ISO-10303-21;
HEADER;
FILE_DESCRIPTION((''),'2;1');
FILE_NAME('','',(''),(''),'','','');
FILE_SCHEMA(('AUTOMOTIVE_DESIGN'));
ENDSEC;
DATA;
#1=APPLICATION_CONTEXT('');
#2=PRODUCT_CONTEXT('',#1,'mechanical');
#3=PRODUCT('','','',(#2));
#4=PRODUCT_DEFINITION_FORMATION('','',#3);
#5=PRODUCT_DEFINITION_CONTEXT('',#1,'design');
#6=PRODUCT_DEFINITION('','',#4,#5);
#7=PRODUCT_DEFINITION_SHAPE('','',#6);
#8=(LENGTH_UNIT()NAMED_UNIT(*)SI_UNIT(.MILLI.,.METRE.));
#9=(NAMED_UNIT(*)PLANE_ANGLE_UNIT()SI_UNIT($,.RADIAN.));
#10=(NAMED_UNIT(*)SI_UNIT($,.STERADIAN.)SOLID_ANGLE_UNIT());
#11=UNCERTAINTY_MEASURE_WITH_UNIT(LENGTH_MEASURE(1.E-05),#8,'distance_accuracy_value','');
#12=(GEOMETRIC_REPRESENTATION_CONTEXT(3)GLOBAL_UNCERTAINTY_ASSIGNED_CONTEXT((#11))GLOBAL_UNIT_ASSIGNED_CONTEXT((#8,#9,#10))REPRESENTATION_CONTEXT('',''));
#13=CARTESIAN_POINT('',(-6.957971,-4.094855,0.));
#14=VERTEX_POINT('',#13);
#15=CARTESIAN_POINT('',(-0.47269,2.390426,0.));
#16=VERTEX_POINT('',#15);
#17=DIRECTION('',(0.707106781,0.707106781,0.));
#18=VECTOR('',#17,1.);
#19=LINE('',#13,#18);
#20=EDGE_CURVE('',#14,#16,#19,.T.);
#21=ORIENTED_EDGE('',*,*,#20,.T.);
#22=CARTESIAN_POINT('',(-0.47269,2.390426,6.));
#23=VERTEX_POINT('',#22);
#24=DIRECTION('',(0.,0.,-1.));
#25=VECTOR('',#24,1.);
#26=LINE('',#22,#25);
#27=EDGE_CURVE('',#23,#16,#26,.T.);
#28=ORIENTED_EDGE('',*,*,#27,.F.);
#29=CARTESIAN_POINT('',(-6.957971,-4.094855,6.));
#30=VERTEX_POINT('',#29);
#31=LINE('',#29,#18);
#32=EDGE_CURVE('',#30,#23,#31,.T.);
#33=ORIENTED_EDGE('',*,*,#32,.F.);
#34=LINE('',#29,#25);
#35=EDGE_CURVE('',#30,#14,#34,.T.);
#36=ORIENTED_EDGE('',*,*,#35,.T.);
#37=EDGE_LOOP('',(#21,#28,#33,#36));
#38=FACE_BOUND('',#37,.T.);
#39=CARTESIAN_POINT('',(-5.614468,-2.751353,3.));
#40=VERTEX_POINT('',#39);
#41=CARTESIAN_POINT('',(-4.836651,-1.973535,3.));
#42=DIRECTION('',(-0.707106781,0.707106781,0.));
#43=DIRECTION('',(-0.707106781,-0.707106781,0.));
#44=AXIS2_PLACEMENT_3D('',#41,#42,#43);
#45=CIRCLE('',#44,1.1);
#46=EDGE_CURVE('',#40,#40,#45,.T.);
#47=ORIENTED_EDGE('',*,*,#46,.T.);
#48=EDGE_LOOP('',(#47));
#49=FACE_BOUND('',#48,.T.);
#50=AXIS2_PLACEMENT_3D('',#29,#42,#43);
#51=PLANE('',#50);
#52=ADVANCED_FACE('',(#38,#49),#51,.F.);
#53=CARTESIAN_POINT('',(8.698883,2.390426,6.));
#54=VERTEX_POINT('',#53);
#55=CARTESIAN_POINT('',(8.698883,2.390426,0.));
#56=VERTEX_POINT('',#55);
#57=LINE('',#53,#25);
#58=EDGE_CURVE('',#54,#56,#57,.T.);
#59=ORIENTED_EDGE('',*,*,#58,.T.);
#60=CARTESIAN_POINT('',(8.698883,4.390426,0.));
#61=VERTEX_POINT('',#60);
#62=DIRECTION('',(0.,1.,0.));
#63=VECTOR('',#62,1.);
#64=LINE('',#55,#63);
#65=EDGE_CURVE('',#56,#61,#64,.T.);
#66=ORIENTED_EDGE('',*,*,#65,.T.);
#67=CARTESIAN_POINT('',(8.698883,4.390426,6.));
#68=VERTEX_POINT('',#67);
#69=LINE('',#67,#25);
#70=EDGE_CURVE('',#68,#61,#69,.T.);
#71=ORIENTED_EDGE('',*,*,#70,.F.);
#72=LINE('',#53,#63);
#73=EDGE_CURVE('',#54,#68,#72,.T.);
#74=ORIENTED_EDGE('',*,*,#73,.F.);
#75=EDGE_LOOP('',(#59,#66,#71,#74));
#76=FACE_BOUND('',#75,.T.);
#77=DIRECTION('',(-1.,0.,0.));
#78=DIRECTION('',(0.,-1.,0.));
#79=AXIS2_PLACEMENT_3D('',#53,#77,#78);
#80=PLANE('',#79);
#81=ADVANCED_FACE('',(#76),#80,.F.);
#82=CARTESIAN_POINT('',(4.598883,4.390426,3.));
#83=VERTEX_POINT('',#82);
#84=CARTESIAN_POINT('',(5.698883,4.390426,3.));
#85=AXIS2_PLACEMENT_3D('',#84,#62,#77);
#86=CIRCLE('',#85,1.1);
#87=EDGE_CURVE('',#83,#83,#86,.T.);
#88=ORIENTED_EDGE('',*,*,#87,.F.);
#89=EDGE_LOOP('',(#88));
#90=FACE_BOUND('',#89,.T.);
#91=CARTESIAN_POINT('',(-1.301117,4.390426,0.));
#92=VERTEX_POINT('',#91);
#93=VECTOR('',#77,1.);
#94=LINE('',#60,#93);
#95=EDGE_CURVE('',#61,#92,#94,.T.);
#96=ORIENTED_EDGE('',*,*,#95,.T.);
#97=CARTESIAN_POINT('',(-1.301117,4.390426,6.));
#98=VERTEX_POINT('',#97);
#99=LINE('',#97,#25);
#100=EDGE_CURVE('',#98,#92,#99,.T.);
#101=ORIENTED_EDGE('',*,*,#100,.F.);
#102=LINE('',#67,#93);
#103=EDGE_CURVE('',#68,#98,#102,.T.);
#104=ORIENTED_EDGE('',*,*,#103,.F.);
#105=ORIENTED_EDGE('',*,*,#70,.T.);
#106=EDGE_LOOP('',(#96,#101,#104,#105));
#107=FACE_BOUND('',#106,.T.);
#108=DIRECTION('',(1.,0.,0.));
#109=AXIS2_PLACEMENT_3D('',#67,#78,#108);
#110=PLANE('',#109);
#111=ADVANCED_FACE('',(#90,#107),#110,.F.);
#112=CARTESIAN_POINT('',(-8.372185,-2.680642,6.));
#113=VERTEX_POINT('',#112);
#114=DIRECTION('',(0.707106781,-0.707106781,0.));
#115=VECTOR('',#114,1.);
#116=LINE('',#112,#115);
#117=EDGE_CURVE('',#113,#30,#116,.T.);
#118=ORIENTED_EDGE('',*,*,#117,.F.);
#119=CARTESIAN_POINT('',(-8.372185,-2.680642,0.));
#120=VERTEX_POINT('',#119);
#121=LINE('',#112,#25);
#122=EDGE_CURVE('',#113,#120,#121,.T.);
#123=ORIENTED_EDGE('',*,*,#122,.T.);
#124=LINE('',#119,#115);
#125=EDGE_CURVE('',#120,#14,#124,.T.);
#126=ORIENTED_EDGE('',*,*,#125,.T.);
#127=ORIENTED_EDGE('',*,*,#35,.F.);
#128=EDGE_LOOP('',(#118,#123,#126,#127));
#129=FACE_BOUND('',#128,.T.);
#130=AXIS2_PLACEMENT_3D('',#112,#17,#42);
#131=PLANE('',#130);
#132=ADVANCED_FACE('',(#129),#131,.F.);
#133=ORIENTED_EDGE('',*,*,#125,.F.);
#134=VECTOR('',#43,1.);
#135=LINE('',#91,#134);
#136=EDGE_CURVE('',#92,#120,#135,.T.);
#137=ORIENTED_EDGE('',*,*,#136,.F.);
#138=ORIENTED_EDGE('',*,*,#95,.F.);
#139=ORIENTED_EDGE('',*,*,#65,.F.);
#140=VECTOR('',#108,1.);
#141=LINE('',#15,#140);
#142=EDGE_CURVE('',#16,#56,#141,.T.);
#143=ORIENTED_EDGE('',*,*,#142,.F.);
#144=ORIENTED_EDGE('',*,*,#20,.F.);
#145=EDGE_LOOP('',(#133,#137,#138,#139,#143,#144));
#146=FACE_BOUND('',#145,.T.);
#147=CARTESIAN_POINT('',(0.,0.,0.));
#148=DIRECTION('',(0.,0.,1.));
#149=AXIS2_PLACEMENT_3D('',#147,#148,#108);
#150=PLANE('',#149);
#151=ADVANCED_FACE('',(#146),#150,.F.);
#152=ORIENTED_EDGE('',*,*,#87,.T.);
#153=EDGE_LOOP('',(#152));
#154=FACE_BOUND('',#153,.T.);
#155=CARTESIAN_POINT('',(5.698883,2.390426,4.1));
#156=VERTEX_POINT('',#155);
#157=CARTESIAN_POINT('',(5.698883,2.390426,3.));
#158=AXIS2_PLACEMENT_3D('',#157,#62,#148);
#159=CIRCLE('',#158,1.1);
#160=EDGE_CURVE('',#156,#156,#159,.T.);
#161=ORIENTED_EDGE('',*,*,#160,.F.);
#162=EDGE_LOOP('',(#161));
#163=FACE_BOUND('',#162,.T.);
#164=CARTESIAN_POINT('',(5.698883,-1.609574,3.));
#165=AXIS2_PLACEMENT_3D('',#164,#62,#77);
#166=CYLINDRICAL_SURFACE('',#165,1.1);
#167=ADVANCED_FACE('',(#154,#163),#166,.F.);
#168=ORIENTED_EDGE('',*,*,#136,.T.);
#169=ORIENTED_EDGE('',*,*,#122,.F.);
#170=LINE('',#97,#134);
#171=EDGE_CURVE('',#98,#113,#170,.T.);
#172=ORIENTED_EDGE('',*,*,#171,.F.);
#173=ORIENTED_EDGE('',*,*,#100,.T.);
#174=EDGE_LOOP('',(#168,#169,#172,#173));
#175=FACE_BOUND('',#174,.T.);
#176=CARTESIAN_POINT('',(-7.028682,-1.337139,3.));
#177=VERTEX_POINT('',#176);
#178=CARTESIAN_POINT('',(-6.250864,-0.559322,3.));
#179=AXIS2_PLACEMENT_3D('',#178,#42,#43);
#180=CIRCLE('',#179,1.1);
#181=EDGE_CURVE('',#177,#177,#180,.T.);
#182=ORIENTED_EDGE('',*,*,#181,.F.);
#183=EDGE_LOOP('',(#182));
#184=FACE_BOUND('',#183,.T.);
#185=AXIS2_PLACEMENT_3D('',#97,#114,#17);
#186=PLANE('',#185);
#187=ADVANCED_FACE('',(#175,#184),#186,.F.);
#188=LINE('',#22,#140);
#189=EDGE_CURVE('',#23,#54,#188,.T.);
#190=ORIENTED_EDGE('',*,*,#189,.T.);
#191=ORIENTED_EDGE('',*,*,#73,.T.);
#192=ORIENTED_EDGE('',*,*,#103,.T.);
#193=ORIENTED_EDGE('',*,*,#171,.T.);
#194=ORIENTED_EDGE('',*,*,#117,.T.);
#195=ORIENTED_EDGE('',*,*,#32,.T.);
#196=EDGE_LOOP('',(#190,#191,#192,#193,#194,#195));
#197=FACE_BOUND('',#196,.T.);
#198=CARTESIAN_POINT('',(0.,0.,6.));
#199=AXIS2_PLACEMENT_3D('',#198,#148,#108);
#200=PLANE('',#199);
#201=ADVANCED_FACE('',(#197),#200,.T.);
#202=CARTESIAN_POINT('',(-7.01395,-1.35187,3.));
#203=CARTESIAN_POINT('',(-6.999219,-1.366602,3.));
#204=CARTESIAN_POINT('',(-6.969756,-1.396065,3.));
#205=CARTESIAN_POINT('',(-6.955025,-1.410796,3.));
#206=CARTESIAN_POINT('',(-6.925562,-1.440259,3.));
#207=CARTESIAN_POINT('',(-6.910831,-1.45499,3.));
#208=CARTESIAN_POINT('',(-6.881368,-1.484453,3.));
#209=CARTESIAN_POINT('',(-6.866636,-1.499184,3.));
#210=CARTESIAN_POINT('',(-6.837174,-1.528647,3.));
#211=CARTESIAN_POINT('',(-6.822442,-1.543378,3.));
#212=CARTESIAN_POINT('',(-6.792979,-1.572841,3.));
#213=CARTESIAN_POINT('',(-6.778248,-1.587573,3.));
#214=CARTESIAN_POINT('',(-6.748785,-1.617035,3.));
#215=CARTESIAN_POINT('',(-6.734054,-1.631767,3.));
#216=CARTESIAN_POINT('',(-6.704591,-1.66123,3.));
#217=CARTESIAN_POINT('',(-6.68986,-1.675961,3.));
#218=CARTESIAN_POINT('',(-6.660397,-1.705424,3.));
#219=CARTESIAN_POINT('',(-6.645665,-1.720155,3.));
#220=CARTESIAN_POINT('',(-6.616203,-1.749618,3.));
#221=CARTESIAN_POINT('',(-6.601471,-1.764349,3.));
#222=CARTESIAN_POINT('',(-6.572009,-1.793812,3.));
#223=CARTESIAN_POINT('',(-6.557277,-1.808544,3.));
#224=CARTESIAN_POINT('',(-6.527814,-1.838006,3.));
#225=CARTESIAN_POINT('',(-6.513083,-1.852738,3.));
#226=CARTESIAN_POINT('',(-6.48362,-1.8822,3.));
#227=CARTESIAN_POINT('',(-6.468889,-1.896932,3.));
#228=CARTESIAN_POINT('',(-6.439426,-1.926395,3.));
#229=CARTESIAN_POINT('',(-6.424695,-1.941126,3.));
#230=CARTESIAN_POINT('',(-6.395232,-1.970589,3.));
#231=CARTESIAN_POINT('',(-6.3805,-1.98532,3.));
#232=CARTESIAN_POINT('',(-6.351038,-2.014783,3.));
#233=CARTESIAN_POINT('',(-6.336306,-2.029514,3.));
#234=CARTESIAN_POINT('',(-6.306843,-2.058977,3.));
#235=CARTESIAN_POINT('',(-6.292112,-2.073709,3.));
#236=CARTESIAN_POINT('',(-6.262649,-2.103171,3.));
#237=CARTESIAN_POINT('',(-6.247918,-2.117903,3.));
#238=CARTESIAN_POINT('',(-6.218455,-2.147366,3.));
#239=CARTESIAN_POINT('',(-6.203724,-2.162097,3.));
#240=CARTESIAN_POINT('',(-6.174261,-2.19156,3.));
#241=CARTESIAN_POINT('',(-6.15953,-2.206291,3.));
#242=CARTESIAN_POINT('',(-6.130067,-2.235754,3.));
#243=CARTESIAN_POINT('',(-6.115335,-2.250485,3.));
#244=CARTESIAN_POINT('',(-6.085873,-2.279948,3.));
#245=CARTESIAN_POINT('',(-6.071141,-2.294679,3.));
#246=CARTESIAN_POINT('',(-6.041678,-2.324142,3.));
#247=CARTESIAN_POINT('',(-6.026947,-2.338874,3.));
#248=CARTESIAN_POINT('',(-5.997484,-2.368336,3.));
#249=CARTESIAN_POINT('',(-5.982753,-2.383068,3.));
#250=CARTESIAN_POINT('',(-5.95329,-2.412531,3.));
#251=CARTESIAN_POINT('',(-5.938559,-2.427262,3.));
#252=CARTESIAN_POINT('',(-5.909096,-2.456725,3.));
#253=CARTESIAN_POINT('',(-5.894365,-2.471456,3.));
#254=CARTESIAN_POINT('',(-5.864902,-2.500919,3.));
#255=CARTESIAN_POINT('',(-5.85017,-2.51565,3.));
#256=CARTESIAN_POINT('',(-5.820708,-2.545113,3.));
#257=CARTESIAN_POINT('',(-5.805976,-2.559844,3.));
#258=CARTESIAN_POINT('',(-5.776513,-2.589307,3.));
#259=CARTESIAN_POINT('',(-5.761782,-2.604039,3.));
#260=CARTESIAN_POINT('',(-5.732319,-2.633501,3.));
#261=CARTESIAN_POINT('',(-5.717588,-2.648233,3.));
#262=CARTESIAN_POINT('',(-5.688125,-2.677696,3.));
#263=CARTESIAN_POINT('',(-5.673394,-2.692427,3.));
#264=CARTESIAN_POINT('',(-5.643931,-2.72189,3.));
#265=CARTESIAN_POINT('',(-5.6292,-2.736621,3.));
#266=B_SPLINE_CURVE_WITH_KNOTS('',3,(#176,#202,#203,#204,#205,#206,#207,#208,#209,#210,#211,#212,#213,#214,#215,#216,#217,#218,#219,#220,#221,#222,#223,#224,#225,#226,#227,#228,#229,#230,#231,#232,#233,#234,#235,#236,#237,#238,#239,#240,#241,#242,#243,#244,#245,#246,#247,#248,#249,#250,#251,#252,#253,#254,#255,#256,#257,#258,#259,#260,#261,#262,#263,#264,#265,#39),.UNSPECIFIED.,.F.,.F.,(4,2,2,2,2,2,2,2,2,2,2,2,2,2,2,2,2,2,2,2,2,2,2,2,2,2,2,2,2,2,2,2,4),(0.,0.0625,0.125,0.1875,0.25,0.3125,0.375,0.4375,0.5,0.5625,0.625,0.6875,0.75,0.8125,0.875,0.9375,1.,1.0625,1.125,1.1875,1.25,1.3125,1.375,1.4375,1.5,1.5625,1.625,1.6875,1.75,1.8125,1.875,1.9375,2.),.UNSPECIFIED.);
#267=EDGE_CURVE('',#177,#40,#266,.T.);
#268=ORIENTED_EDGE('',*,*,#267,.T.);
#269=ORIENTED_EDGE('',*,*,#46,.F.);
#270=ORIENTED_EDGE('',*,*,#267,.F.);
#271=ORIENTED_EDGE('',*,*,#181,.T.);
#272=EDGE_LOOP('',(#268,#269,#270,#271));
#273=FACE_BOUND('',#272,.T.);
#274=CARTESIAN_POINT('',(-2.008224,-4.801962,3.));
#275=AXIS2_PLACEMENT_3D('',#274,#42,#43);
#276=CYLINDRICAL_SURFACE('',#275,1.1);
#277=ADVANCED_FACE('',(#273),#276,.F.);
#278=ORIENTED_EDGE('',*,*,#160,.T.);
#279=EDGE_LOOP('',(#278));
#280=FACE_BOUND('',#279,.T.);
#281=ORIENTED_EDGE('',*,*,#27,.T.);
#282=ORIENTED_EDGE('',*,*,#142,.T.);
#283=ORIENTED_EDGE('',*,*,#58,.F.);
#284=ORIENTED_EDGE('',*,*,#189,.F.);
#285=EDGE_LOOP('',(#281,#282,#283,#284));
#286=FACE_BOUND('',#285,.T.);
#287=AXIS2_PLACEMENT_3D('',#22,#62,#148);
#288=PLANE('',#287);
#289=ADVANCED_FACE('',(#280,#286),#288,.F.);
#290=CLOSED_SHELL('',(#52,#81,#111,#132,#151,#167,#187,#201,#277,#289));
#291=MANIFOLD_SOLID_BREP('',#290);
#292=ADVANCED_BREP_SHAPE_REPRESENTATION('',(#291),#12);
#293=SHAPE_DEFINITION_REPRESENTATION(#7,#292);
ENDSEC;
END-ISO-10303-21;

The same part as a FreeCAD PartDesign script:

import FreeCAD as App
import Part
import Sketcher
Q = App.Units.Quantity

doc = App.newDocument("Part")
body = doc.addObject("PartDesign::Body", "Body")

# Sketch on XY plane
sketch1 = doc.addObject("Sketcher::SketchObject", "Sketch")
body.addObject(sketch1)
sketch1.AttachmentSupport = (doc.XY_Plane, [""])
sketch1.MapMode = "FlatFace"
sketch1.addGeometry([
    Part.LineSegment(App.Vector(8.698883, 4.390426, 0), App.Vector(-1.301117, 4.390426, 0)),  # 0
    Part.LineSegment(App.Vector(-1.301117, 4.390426, 0), App.Vector(-8.372185, -2.680642, 0)),  # 1
    Part.LineSegment(App.Vector(-8.372185, -2.680642, 0), App.Vector(-6.957971, -4.094855, 0)),  # 2
    Part.LineSegment(App.Vector(-6.957971, -4.094855, 0), App.Vector(-0.47269, 2.390426, 0)),  # 3
    Part.LineSegment(App.Vector(-0.47269, 2.390426, 0), App.Vector(8.698883, 2.390426, 0)),  # 4
    Part.LineSegment(App.Vector(8.698883, 2.390426, 0), App.Vector(8.698883, 4.390426, 0)),  # 5
], False)
sketch1.addConstraint([
    Sketcher.Constraint("Coincident", 0, 2, 1, 1),
    Sketcher.Constraint("Coincident", 1, 2, 2, 1),
    Sketcher.Constraint("Coincident", 2, 2, 3, 1),
    Sketcher.Constraint("Coincident", 3, 2, 4, 1),
    Sketcher.Constraint("Coincident", 4, 2, 5, 1),
    Sketcher.Constraint("Coincident", 5, 2, 0, 1),
    Sketcher.Constraint("Horizontal", 0),
    Sketcher.Constraint("Horizontal", 4),
    Sketcher.Constraint("Vertical", 5),
    Sketcher.Constraint("Perpendicular", 1, 2),
    Sketcher.Constraint("Perpendicular", 2, 3),
    Sketcher.Constraint("DistanceX", 0, 2, 0, 1, Q("10 mm")),
    Sketcher.Constraint("DistanceY", 5, 1, 5, 2, Q("2 mm")),
    Sketcher.Constraint("Angle", 1, Q("-135 deg")),
    Sketcher.Constraint("Distance", 1, Q("10 mm")),
    Sketcher.Constraint("Distance", 2, Q("2 mm")),
    Sketcher.Constraint("DistanceY", 1, 2, -1, 1, Q("2.680642 mm")),
    Sketcher.Constraint("DistanceX", 2, 2, -1, 1, Q("6.957971 mm")),
])
pad1 = doc.addObject("PartDesign::Pad", "Pad")
body.addObject(pad1)
pad1.Profile = sketch1
pad1.Length = 6

# Sketch on XZ plane
sketch2 = doc.addObject("Sketcher::SketchObject", "Sketch001")
body.addObject(sketch2)
sketch2.AttachmentSupport = (doc.XZ_Plane, [""])
sketch2.MapMode = "FlatFace"
sketch2.AttachmentOffset = App.Placement(App.Vector(0, 0, -4.390426), App.Rotation())
sketch2.addGeometry(Part.Circle(App.Vector(5.698883, 3, 0), App.Vector(0, 0, 1), 1.1), False)
sketch2.addConstraint([
    Sketcher.Constraint("Diameter", 0, Q("2.2 mm")),
    Sketcher.Constraint("DistanceY", -1, 1, 0, 3, Q("3 mm")),
    Sketcher.Constraint("DistanceX", -1, 1, 0, 3, Q("5.698883 mm")),
])
pocket1 = doc.addObject("PartDesign::Pocket", "Pocket")
body.addObject(pocket1)
pocket1.Profile = sketch2
pocket1.Length = 6
pocket1.Reversed = True

# Sketch on an angled plane
sketch3 = doc.addObject("Sketcher::SketchObject", "Sketch002")
body.addObject(sketch3)
sketch3.Placement = App.Placement(App.Vector(-2.845771, 2.845771, 0), App.Rotation(App.Vector(0, 0, 1), App.Vector(0.707106781, 0.707106781, 0), App.Vector(-0.707106781, 0.707106781, 0), "ZXY"))
sketch3.addGeometry(Part.Circle(App.Vector(3, -4.815529, 0), App.Vector(0, 0, 1), 1.1), False)
sketch3.addConstraint([
    Sketcher.Constraint("Diameter", 0, Q("2.2 mm")),
    Sketcher.Constraint("DistanceX", -1, 1, 0, 3, Q("3 mm")),
    Sketcher.Constraint("DistanceY", 0, 3, -1, 1, Q("4.815529 mm")),
])
pocket2 = doc.addObject("PartDesign::Pocket", "Pocket001")
body.addObject(pocket2)
pocket2.Profile = sketch3
pocket2.Length = 6

doc.recompute()
